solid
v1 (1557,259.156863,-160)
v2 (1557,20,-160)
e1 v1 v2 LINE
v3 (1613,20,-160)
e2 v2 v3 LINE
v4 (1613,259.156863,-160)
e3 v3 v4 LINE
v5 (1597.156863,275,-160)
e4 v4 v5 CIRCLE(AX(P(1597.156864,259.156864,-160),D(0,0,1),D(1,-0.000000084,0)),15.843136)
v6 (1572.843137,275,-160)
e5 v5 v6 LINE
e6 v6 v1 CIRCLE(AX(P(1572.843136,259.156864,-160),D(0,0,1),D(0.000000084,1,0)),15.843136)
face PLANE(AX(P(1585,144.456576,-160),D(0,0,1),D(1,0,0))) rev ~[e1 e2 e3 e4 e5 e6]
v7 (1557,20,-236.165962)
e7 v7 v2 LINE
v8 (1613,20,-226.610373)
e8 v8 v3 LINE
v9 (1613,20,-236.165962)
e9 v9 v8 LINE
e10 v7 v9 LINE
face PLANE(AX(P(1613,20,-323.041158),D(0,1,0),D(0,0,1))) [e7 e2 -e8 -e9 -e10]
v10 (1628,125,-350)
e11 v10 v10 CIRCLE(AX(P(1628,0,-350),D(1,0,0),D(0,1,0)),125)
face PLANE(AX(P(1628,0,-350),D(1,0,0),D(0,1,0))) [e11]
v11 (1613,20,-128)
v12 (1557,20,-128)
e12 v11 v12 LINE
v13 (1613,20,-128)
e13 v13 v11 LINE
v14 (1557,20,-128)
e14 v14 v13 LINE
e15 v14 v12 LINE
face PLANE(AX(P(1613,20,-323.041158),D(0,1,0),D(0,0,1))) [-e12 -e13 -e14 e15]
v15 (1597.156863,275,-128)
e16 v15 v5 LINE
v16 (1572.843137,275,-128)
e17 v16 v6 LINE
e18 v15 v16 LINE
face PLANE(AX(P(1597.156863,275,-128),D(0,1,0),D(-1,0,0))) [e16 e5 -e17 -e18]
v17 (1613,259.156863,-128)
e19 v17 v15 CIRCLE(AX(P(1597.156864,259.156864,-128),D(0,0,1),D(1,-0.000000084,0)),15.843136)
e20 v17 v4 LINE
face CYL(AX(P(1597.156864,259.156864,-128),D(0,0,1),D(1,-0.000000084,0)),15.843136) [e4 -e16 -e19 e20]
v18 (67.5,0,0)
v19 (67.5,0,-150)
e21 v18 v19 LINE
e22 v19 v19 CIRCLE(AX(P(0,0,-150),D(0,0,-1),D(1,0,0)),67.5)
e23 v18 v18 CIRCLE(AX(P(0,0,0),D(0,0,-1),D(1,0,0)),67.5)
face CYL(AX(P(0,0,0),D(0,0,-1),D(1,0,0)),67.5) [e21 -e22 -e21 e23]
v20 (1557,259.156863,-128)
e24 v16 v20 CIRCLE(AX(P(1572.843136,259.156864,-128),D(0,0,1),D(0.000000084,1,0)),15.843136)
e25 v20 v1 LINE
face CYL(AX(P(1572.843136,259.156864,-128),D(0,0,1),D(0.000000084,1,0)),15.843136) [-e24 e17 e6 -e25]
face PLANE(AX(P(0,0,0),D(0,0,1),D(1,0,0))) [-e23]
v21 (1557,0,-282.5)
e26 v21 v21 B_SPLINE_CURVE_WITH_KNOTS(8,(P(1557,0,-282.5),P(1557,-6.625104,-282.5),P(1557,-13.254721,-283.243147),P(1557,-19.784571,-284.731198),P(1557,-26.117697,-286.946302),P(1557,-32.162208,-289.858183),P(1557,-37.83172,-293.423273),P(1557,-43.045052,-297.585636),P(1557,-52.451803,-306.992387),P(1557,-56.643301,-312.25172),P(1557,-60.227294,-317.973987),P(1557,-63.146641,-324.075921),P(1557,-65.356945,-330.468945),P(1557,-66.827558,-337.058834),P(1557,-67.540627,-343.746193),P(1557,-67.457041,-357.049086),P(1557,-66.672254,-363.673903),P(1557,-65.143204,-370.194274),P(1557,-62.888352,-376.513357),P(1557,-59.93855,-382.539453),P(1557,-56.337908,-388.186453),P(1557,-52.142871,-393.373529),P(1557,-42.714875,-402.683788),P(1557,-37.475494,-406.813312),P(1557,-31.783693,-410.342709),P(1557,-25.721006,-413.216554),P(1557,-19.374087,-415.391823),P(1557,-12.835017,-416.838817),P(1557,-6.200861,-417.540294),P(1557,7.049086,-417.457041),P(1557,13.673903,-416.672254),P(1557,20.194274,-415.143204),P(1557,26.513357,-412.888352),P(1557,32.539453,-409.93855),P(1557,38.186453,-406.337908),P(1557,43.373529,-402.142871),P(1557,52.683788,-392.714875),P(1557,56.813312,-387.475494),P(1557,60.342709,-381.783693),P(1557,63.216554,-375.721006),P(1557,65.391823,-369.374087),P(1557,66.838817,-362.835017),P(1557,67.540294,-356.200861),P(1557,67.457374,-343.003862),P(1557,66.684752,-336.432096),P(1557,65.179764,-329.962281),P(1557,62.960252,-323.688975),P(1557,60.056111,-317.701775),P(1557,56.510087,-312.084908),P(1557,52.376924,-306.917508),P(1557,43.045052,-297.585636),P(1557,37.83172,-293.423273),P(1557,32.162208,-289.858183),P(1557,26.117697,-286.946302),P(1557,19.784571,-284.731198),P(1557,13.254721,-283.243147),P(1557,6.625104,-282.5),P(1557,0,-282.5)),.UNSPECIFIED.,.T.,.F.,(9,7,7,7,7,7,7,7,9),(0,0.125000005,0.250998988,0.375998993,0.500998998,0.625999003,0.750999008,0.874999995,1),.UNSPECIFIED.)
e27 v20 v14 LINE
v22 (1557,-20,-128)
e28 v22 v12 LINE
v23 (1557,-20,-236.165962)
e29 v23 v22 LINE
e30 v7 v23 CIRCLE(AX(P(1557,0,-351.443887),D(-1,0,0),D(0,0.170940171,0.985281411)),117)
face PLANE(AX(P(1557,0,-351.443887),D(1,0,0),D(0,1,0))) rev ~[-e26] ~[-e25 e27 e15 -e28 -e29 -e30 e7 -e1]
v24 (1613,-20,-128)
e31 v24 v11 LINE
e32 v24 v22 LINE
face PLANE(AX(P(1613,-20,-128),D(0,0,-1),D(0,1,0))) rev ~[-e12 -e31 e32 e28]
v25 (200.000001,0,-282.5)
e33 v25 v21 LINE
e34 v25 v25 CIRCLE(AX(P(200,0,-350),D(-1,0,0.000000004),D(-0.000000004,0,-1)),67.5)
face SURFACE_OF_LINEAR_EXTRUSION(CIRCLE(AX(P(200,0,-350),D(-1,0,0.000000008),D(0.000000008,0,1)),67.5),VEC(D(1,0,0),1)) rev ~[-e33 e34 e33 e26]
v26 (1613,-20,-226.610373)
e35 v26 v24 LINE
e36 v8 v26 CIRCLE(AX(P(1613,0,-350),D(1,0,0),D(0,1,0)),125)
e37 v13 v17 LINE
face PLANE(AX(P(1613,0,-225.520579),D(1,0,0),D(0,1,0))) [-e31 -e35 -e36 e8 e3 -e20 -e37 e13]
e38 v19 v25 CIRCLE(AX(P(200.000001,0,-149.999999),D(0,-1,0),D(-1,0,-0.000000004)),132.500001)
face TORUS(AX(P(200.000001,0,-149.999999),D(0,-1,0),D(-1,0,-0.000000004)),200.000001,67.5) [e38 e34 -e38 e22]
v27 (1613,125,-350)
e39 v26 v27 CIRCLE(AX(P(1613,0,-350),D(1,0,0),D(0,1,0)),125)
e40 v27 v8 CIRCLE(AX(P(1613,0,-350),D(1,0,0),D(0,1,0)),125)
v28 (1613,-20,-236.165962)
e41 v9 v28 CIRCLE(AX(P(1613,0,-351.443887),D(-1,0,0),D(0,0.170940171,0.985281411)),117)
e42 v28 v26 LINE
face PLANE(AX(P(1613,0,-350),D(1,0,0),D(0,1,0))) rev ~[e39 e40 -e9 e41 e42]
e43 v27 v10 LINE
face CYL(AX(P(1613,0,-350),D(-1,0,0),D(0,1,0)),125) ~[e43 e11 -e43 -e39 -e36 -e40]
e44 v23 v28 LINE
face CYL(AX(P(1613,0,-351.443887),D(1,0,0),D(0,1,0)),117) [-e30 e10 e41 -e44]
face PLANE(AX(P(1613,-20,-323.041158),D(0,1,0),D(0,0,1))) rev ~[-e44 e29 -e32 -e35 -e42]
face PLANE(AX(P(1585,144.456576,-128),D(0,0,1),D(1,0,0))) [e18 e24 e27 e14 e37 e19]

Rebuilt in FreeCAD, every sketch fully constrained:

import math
import FreeCAD as App
import Part
import Sketcher


def add_polygon(sketch, points):
    """Adds a closed chain of lines whose ends are joined by coincident constraints."""
    first, n = sketch.GeometryCount, len(points)
    for a, b in zip(points, points[1:] + points[:1]):
        sketch.addGeometry(Part.LineSegment(App.Vector(*a, 0), App.Vector(*b, 0)), False)
    for i in range(n):
        sketch.addConstraint(Sketcher.Constraint("Coincident", first + i, 2, first + (i + 1) % n, 1))

doc = App.newDocument("Part")
body = doc.addObject("PartDesign::Body", "Body")

# Sketch on YZ plane
sketch1 = body.newObject("Sketcher::SketchObject", "Sketch")
sketch1.AttachmentSupport = (doc.getObject("YZ_Plane"), [""])
sketch1.MapMode = "FlatFace"
sketch1.AttachmentOffset = App.Placement(App.Vector(0, 0, 1613), App.Rotation())
sketch1.addGeometry(Part.Circle(App.Vector(0, -350, 0), App.Vector(0, 0, 1), 125), False)
sketch1.addConstraint([
    Sketcher.Constraint("PointOnObject", 0, 3, -2),
    Sketcher.Constraint("Diameter", 0, 250.0),
    Sketcher.Constraint("DistanceY", 0, 3, -1, 1, 350.0),
])
pad1 = body.newObject("PartDesign::Pad", "Pad")
pad1.Profile = sketch1
pad1.Length = 15

# Sketch on XY plane
sketch2 = body.newObject("Sketcher::SketchObject", "Sketch001")
sketch2.AttachmentSupport = (doc.getObject("XY_Plane"), [""])
sketch2.MapMode = "FlatFace"
sketch2.addGeometry(Part.Circle(App.Vector(0, 0, 0), App.Vector(0, 0, 1), 68), False)
sketch2.addConstraint([
    Sketcher.Constraint("Coincident", 0, 3, -1, 1),
    Sketcher.Constraint("Diameter", 0, 135.0),
])

# Sketch on XZ plane
sketch3 = body.newObject("Sketcher::SketchObject", "Sketch002")
sketch3.AttachmentSupport = (doc.getObject("XZ_Plane"), [""])
sketch3.MapMode = "FlatFace"
sketch3.addGeometry([
    Part.LineSegment(App.Vector(0, 0, 0), App.Vector(0, -150, 0)),
    Part.ArcOfCircle(Part.Circle(App.Vector(200, -150, 0), App.Vector(0, 0, 1), 200), math.radians(-180), math.radians(-90)),
    Part.LineSegment(App.Vector(200, -350, 0), App.Vector(1613, -350, 0)),
], False)
sketch3.addConstraint([
    Sketcher.Constraint("Tangent", 0, 2, 1, 1),
    Sketcher.Constraint("Tangent", 1, 2, 2, 1),
    Sketcher.Constraint("Vertical", 0),
    Sketcher.Constraint("Horizontal", 2),
    Sketcher.Constraint("Coincident", 0, 1, -1, 1),
    Sketcher.Constraint("Radius", 1, 200.000001),
    Sketcher.Constraint("DistanceX", 2, 1, 2, 2, 1413.0),
    Sketcher.Constraint("DistanceY", 0, 2, 0, 1, 150.0),
])
doc.recompute()

additivepipe = body.newObject("PartDesign::AdditivePipe", "AdditivePipe")
additivepipe.Profile = sketch2
additivepipe.Spine = (sketch3, ["Edge1", "Edge2", "Edge3"])

# Sketch on YZ plane
sketch4 = body.newObject("Sketcher::SketchObject", "Sketch003")
sketch4.AttachmentSupport = (doc.getObject("YZ_Plane"), [""])
sketch4.MapMode = "FlatFace"
sketch4.AttachmentOffset = App.Placement(App.Vector(0, 0, 1613), App.Rotation())
sketch4.addGeometry(Part.Circle(App.Vector(0, -351, 0), App.Vector(0, 0, 1), 117), False)
sketch4.addConstraint([
    Sketcher.Constraint("PointOnObject", 0, 3, -2),
    Sketcher.Constraint("Diameter", 0, 234.0),
    Sketcher.Constraint("DistanceY", 0, 3, -1, 1, 351.443887),
])
pad2 = body.newObject("PartDesign::Pad", "Pad001")
pad2.Profile = sketch4
pad2.Length = 56
pad2.Reversed = True

# Sketch on YZ plane
sketch5 = body.newObject("Sketcher::SketchObject", "Sketch004")
sketch5.AttachmentSupport = (doc.getObject("YZ_Plane"), [""])
sketch5.MapMode = "FlatFace"
sketch5.AttachmentOffset = App.Placement(App.Vector(0, 0, 1613), App.Rotation())
add_polygon(sketch5, [(-20, -128), (-20, -323), (20, -323), (20, -128)])  # lines 0-3
sketch5.addConstraint([
    Sketcher.Constraint("Vertical", 0),
    Sketcher.Constraint("Horizontal", 1),
    Sketcher.Constraint("Vertical", 2),
    Sketcher.Constraint("Horizontal", 3),
    Sketcher.Constraint("DistanceX", 1, 1, 1, 2, 40.0),
    Sketcher.Constraint("DistanceX", 0, 2, -1, 1, 20.0),
    Sketcher.Constraint("DistanceY", 2, 2, -1, 1, 128.0),
    Sketcher.Constraint("DistanceY", 0, 2, 0, 1, 195.041159),
])
pad3 = body.newObject("PartDesign::Pad", "Pad002")
pad3.Profile = sketch5
pad3.Length = 56
pad3.Reversed = True

# Sketch on XY plane
sketch6 = body.newObject("Sketcher::SketchObject", "Sketch005")
sketch6.AttachmentSupport = (doc.getObject("XY_Plane"), [""])
sketch6.MapMode = "FlatFace"
sketch6.AttachmentOffset = App.Placement(App.Vector(0, 0, -128), App.Rotation())
sketch6.addGeometry([
    Part.LineSegment(App.Vector(1557, 259, 0), App.Vector(1557, 20, 0)),  # 0
    Part.LineSegment(App.Vector(1557, 20, 0), App.Vector(1613, 20, 0)),  # 1
    Part.LineSegment(App.Vector(1613, 20, 0), App.Vector(1613, 259, 0)),  # 2
    Part.ArcOfCircle(Part.Circle(App.Vector(1597, 259, 0), App.Vector(0, 0, 1), 16), math.radians(0), math.radians(90)),  # 3
    Part.LineSegment(App.Vector(1597, 275, 0), App.Vector(1573, 275, 0)),  # 4
    Part.ArcOfCircle(Part.Circle(App.Vector(1573, 259, 0), App.Vector(0, 0, 1), 16), math.radians(90), math.radians(180)),  # 5
], False)
sketch6.addConstraint([
    Sketcher.Constraint("Coincident", 0, 2, 1, 1),
    Sketcher.Constraint("Coincident", 1, 2, 2, 1),
    Sketcher.Constraint("Tangent", 2, 2, 3, 1),
    Sketcher.Constraint("Tangent", 3, 2, 4, 1),
    Sketcher.Constraint("Tangent", 4, 2, 5, 1),
    Sketcher.Constraint("Tangent", 5, 2, 0, 1),
    Sketcher.Constraint("Vertical", 0),
    Sketcher.Constraint("Horizontal", 1),
    Sketcher.Constraint("Vertical", 2),
    Sketcher.Constraint("Horizontal", 4),
    Sketcher.Constraint("Equal", 3, 5),
    Sketcher.Constraint("DistanceX", 1, 1, 1, 2, 56.0),
    Sketcher.Constraint("DistanceX", -1, 1, 0, 2, 1557.0),
    Sketcher.Constraint("DistanceY", -1, 1, 0, 2, 20.0),
    Sketcher.Constraint("DistanceY", -1, 1, 3, 2, 275.0),
    Sketcher.Constraint("Radius", 3, 15.843136),
])
pad4 = body.newObject("PartDesign::Pad", "Pad003")
pad4.Profile = sketch6
pad4.Length = 32
pad4.Reversed = True

doc.recompute()
